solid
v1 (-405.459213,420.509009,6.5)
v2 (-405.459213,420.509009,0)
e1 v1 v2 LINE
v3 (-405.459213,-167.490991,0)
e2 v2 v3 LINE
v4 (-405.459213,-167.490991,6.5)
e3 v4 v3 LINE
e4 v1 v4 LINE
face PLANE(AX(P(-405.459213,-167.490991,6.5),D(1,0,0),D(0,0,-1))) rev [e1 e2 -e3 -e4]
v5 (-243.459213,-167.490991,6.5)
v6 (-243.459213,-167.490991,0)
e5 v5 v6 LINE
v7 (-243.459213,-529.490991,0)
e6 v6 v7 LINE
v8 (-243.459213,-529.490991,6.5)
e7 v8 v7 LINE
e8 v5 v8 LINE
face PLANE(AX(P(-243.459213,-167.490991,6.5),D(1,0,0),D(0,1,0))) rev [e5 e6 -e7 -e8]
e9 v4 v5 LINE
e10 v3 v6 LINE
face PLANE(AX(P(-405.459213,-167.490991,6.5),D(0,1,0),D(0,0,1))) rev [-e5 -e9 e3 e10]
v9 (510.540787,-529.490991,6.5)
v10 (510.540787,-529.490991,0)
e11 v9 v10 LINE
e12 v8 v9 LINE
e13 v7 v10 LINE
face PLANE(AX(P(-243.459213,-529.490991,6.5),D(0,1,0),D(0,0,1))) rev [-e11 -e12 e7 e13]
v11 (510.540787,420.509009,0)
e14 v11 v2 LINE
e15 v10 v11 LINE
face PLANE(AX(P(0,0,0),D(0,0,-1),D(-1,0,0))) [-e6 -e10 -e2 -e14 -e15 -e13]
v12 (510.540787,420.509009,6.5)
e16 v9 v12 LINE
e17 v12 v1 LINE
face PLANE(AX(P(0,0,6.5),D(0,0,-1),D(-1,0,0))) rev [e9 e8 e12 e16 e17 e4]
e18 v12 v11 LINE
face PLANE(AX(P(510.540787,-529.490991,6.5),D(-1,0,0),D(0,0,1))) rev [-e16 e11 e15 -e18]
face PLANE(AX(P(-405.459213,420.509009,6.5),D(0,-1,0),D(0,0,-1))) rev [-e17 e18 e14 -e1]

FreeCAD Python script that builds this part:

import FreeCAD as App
import Part
import Sketcher

doc = App.newDocument("Part")
body = doc.addObject("PartDesign::Body", "Body")

sketch1 = doc.addObject("Sketcher::SketchObject", "Sketch")
body.addObject(sketch1)
sketch1.AttachmentSupport = (doc.XY_Plane, [""])
sketch1.MapMode = "FlatFace"
sketch1.addGeometry([
    Part.LineSegment(App.Vector(-405, -167, 0), App.Vector(-243, -167, 0)),
    Part.LineSegment(App.Vector(-243, -167, 0), App.Vector(-243, -529, 0)),
    Part.LineSegment(App.Vector(-243, -529, 0), App.Vector(511, -529, 0)),
    Part.LineSegment(App.Vector(511, -529, 0), App.Vector(511, 421, 0)),
    Part.LineSegment(App.Vector(511, 421, 0), App.Vector(-405, 421, 0)),
    Part.LineSegment(App.Vector(-405, 421, 0), App.Vector(-405, -167, 0)),
], False)
sketch1.addConstraint([
    Sketcher.Constraint("Coincident", 0, 2, 1, 1),
    Sketcher.Constraint("Coincident", 1, 2, 2, 1),
    Sketcher.Constraint("Coincident", 2, 2, 3, 1),
    Sketcher.Constraint("Coincident", 3, 2, 4, 1),
    Sketcher.Constraint("Coincident", 4, 2, 5, 1),
    Sketcher.Constraint("Coincident", 5, 2, 0, 1),
    Sketcher.Constraint("Horizontal", 0),
    Sketcher.Constraint("Vertical", 1),
    Sketcher.Constraint("Horizontal", 2),
    Sketcher.Constraint("Vertical", 3),
    Sketcher.Constraint("Horizontal", 4),
    Sketcher.Constraint("Vertical", 5),
    Sketcher.Constraint("DistanceX", 0, 1, 0, 2, 162.0),
    Sketcher.Constraint("DistanceX", 2, 1, 2, 2, 754.0),
    Sketcher.Constraint("DistanceY", 1, 2, 1, 1, 362.0),
    Sketcher.Constraint("DistanceY", 3, 1, 3, 2, 950.0),
    Sketcher.Constraint("DistanceY", 0, 2, -1, 1, 167.490991),
    Sketcher.Constraint("DistanceX", 0, 2, -1, 1, 243.459213),
])
pad1 = doc.addObject("PartDesign::Pad", "Pad")
body.addObject(pad1)
pad1.Profile = sketch1
pad1.Length = 6.5

doc.recompute()
